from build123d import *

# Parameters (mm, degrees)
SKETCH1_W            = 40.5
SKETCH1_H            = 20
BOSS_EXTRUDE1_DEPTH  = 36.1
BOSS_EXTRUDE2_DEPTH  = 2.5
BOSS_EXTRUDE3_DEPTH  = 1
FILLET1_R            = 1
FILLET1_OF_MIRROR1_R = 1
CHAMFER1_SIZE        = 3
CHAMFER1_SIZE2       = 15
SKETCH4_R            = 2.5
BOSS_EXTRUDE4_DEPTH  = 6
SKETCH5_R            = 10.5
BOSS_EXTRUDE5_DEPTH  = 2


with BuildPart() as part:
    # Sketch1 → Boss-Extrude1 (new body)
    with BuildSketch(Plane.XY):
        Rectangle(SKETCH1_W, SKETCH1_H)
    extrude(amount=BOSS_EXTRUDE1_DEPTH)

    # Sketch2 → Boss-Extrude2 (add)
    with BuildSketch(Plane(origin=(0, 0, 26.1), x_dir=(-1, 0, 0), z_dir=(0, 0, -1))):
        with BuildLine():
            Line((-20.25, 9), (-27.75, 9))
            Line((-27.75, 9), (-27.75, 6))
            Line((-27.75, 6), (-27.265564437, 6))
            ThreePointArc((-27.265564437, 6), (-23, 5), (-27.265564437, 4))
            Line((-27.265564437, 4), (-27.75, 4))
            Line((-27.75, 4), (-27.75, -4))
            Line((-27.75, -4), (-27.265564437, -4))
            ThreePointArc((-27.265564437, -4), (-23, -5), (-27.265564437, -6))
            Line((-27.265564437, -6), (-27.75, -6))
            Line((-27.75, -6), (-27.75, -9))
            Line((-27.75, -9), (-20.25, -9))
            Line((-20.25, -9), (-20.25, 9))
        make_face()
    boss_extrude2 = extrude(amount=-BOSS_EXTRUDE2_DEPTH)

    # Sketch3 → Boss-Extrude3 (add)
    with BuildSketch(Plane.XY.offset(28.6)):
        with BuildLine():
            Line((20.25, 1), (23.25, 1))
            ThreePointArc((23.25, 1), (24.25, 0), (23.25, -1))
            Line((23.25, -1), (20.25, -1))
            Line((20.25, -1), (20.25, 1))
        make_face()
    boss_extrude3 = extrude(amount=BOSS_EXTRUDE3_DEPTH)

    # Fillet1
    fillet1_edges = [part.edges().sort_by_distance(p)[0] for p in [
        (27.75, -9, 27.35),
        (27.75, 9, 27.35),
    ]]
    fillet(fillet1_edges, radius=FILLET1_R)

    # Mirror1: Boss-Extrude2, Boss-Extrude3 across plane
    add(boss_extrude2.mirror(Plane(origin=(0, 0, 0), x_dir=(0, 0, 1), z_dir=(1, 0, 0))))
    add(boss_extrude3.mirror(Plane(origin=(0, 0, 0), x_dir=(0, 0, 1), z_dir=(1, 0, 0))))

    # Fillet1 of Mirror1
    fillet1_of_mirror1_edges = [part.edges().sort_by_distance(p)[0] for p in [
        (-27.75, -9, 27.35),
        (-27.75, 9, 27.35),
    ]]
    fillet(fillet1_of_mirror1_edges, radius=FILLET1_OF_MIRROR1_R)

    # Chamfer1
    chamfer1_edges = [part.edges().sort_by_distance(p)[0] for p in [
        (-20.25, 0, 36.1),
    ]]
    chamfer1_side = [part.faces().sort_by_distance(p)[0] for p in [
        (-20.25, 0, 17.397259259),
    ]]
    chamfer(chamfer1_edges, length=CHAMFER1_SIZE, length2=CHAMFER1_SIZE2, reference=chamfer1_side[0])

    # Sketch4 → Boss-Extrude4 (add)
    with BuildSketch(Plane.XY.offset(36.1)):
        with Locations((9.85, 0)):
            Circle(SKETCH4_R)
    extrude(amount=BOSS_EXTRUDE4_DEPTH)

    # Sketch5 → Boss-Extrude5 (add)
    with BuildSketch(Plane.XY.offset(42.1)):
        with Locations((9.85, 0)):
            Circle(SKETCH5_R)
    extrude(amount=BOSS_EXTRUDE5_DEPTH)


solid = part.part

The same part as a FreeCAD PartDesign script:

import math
import FreeCAD as App
import Part
import Sketcher

V = App.Vector


def edges_at(feature, points):
    """Names of the edges that pass closest to the given points."""
    edges = feature.Shape.Edges
    near = lambda p: min(range(len(edges)), key=lambda i: edges[i].distToShape(Part.Vertex(*p))[0])
    return sorted({f"Edge{near(p) + 1}" for p in points})

doc = App.newDocument("Part")
body = doc.addObject("PartDesign::Body", "Body")

# Sketch on XY plane
sketch1 = doc.addObject("Sketcher::SketchObject", "Sketch")
body.addObject(sketch1)
sketch1.AttachmentSupport = (doc.XY_Plane, [""])
sketch1.MapMode = "FlatFace"
sketch1.addGeometry([
    Part.LineSegment(V(-20, 10, 0), V(-20, -10, 0)),
    Part.LineSegment(V(-20, -10, 0), V(20, -10, 0)),
    Part.LineSegment(V(20, -10, 0), V(20, 10, 0)),
    Part.LineSegment(V(20, 10, 0), V(-20, 10, 0)),
], False)
sketch1.addConstraint([
    Sketcher.Constraint("Coincident", 0, 2, 1, 1),
    Sketcher.Constraint("Coincident", 1, 2, 2, 1),
    Sketcher.Constraint("Coincident", 2, 2, 3, 1),
    Sketcher.Constraint("Coincident", 3, 2, 0, 1),
    Sketcher.Constraint("Vertical", 0),
    Sketcher.Constraint("Horizontal", 1),
    Sketcher.Constraint("Vertical", 2),
    Sketcher.Constraint("Horizontal", 3),
    Sketcher.Constraint("Symmetric", 0, 2, 2, 2, -1, 1),
    Sketcher.Constraint("DistanceY", 0, 2, 0, 1, 20.0),
    Sketcher.Constraint("DistanceX", 1, 1, 1, 2, 40.5),
])
pad1 = doc.addObject("PartDesign::Pad", "Pad")
body.addObject(pad1)
pad1.Profile = sketch1
pad1.Length = 36.1

# Sketch on XY plane
sketch2 = doc.addObject("Sketcher::SketchObject", "Sketch001")
body.addObject(sketch2)
sketch2.AttachmentSupport = (doc.XY_Plane, [""])
sketch2.MapMode = "FlatFace"
sketch2.AttachmentOffset = App.Placement(V(0, 0, 26.1), App.Rotation())
sketch2.addGeometry([
    Part.LineSegment(V(20.25, 9, 0), V(27.75, 9, 0)),  # 0
    Part.LineSegment(V(27.75, 9, 0), V(27.75, 6, 0)),  # 1
    Part.LineSegment(V(27.75, 6, 0), V(27.27, 6, 0)),  # 2
    Part.ArcOfCircle(Part.Circle(V(25.25, 5, 0), V(0, 0, 1), 2.25), math.radians(26), math.radians(334)),  # 3
    Part.LineSegment(V(27.27, 4, 0), V(27.75, 4, 0)),  # 4
    Part.LineSegment(V(27.75, 4, 0), V(27.75, -4, 0)),  # 5
    Part.LineSegment(V(27.75, -4, 0), V(27.27, -4, 0)),  # 6
    Part.ArcOfCircle(Part.Circle(V(25.25, -5, 0), V(0, 0, 1), 2.25), math.radians(26), math.radians(334)),  # 7
    Part.LineSegment(V(27.27, -6, 0), V(27.75, -6, 0)),  # 8
    Part.LineSegment(V(27.75, -6, 0), V(27.75, -9, 0)),  # 9
    Part.LineSegment(V(27.75, -9, 0), V(20.25, -9, 0)),  # 10
    Part.LineSegment(V(20.25, -9, 0), V(20.25, 9, 0)),  # 11
], False)
sketch2.addConstraint([
    Sketcher.Constraint("Coincident", 0, 2, 1, 1),
    Sketcher.Constraint("Coincident", 1, 2, 2, 1),
    Sketcher.Constraint("Coincident", 2, 2, 3, 1),
    Sketcher.Constraint("Coincident", 3, 2, 4, 1),
    Sketcher.Constraint("Coincident", 4, 2, 5, 1),
    Sketcher.Constraint("Coincident", 5, 2, 6, 1),
    Sketcher.Constraint("Coincident", 6, 2, 7, 1),
    Sketcher.Constraint("Coincident", 7, 2, 8, 1),
    Sketcher.Constraint("Coincident", 8, 2, 9, 1),
    Sketcher.Constraint("Coincident", 9, 2, 10, 1),
    Sketcher.Constraint("Coincident", 10, 2, 11, 1),
    Sketcher.Constraint("Coincident", 11, 2, 0, 1),
    Sketcher.Constraint("Horizontal", 0),
    Sketcher.Constraint("Vertical", 1),
    Sketcher.Constraint("Horizontal", 2),
    Sketcher.Constraint("Horizontal", 4),
    Sketcher.Constraint("Vertical", 5),
    Sketcher.Constraint("Horizontal", 6),
    Sketcher.Constraint("Horizontal", 8),
    Sketcher.Constraint("Vertical", 9),
    Sketcher.Constraint("Horizontal", 10),
    Sketcher.Constraint("Vertical", 11),
    Sketcher.Constraint("Equal", 3, 7),
    Sketcher.Constraint("Symmetric", 3, 3, 7, 3, -1),
    Sketcher.Constraint("Symmetric", 1, 2, 8, 2, -1),
    Sketcher.Constraint("Vertical", 2, 2, 3, 2),
    Sketcher.Constraint("Vertical", 1, 2, 4, 2),
    Sketcher.Constraint("Vertical", 3, 2, 6, 2),
    Sketcher.Constraint("Equal", 1, 9),
    Sketcher.Constraint("DistanceY", 1, 2, 1, 1, 3.0),
    Sketcher.Constraint("DistanceY", 5, 2, 5, 1, 8.0),
    Sketcher.Constraint("DistanceY", 11, 1, 11, 2, 18.0),
    Sketcher.Constraint("Radius", 3, 2.25),
    Sketcher.Constraint("DistanceX", 0, 1, 0, 2, 7.5),
    Sketcher.Constraint("DistanceX", 10, 2, 7, 3, 5.0),
    Sketcher.Constraint("DistanceX", -1, 1, 3, 3, 25.25),
])
pad2 = doc.addObject("PartDesign::Pad", "Pad001")
body.addObject(pad2)
pad2.Profile = sketch2
pad2.Length = 2.5

# Sketch on XY plane
sketch3 = doc.addObject("Sketcher::SketchObject", "Sketch002")
body.addObject(sketch3)
sketch3.AttachmentSupport = (doc.XY_Plane, [""])
sketch3.MapMode = "FlatFace"
sketch3.AttachmentOffset = App.Placement(V(0, 0, 28.6), App.Rotation())
sketch3.addGeometry([
    Part.LineSegment(V(23.2, 1, 0), V(20.2, 1, 0)),
    Part.LineSegment(V(20.2, 1, 0), V(20.2, -1, 0)),
    Part.LineSegment(V(20.2, -1, 0), V(23.2, -1, 0)),
    Part.ArcOfCircle(Part.Circle(V(23.2, 0, 0), V(0, 0, 1), 1), math.radians(-90), math.radians(90)),
], False)
sketch3.addConstraint([
    Sketcher.Constraint("Coincident", 0, 2, 1, 1),
    Sketcher.Constraint("Coincident", 1, 2, 2, 1),
    Sketcher.Constraint("Tangent", 2, 2, 3, 1),
    Sketcher.Constraint("Tangent", 3, 2, 0, 1),
    Sketcher.Constraint("Horizontal", 0),
    Sketcher.Constraint("Vertical", 1),
    Sketcher.Constraint("Horizontal", 2),
    Sketcher.Constraint("PointOnObject", 3, 3, -1),
    Sketcher.Constraint("Radius", 3, 1.0),
    Sketcher.Constraint("DistanceX", 0, 2, 0, 1, 3.0),
    Sketcher.Constraint("DistanceX", -1, 1, 3, 3, 23.25),
])
pad3 = doc.addObject("PartDesign::Pad", "Pad002")
body.addObject(pad3)
pad3.Profile = sketch3
pad3.Length = 1
doc.recompute()

fillet = doc.addObject("PartDesign::Fillet", "Fillet")
body.addObject(fillet)
fillet.Base = (pad3, edges_at(pad3, [(27.75, -9, 27.35), (27.75, 9, 27.35)]))
fillet.Radius = 1
doc.recompute()

mirrored = doc.addObject("PartDesign::Mirrored", "Mirrored")
body.addObject(mirrored)
mirrored.Originals = [pad2, pad3]
mirrored.MirrorPlane = (doc.YZ_Plane, [""])
body.Tip = mirrored
doc.recompute()

fillet2 = doc.addObject("PartDesign::Fillet", "Fillet001")
body.addObject(fillet2)
fillet2.Base = (mirrored, edges_at(mirrored, [(-27.75, -9, 27.35), (-27.75, 9, 27.35)]))
fillet2.Radius = 1
doc.recompute()

chamfer = doc.addObject("PartDesign::Chamfer", "Chamfer")
body.addObject(chamfer)
chamfer.Base = (fillet2, edges_at(fillet2, [(-20.25, 0, 36.1)]))
chamfer.ChamferType = "Two distances"
chamfer.Size = 3
chamfer.Size2 = 15

# Sketch on XY plane
sketch4 = doc.addObject("Sketcher::SketchObject", "Sketch003")
body.addObject(sketch4)
sketch4.AttachmentSupport = (doc.XY_Plane, [""])
sketch4.MapMode = "FlatFace"
sketch4.AttachmentOffset = App.Placement(V(0, 0, 36.1), App.Rotation())
sketch4.addGeometry(Part.Circle(V(9.8, 0, 0), V(0, 0, 1), 2.5), False)
sketch4.addConstraint([
    Sketcher.Constraint("PointOnObject", 0, 3, -1),
    Sketcher.Constraint("Diameter", 0, 5.0),
    Sketcher.Constraint("DistanceX", -1, 1, 0, 3, 9.85),
])
pad4 = doc.addObject("PartDesign::Pad", "Pad003")
body.addObject(pad4)
pad4.Profile = sketch4
pad4.Length = 6

# Sketch on XY plane
sketch5 = doc.addObject("Sketcher::SketchObject", "Sketch004")
body.addObject(sketch5)
sketch5.AttachmentSupport = (doc.XY_Plane, [""])
sketch5.MapMode = "FlatFace"
sketch5.AttachmentOffset = App.Placement(V(0, 0, 42.1), App.Rotation())
sketch5.addGeometry(Part.Circle(V(10, 0, 0), V(0, 0, 1), 10), False)
sketch5.addConstraint([
    Sketcher.Constraint("PointOnObject", 0, 3, -1),
    Sketcher.Constraint("Diameter", 0, 21.0),
    Sketcher.Constraint("DistanceX", -1, 1, 0, 3, 9.85),
])
pad5 = doc.addObject("PartDesign::Pad", "Pad004")
body.addObject(pad5)
pad5.Profile = sketch5
pad5.Length = 2

doc.recompute()
